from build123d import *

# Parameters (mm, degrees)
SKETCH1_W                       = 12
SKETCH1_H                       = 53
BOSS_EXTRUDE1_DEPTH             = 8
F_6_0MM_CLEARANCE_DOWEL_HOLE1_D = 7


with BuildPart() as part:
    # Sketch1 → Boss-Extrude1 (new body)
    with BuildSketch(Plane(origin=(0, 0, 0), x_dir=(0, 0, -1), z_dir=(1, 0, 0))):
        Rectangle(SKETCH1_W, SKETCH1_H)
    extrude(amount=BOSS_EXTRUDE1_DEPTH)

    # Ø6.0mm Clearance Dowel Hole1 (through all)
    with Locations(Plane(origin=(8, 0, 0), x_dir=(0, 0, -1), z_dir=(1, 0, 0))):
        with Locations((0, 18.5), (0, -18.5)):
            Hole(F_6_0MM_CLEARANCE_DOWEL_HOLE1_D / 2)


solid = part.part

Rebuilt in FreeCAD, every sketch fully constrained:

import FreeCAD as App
import Part
import Sketcher
from FreeCAD import Vector
Q = App.Units.Quantity


def add_polygon(sketch, points):
    """Adds a closed chain of lines whose ends are joined by coincident constraints."""
    first, n = sketch.GeometryCount, len(points)
    for a, b in zip(points, points[1:] + points[:1]):
        sketch.addGeometry(Part.LineSegment(App.Vector(*a, 0), App.Vector(*b, 0)), False)
    for i in range(n):
        sketch.addConstraint(Sketcher.Constraint("Coincident", first + i, 2, first + (i + 1) % n, 1))

doc = App.newDocument("Part")
params = doc.addObject("Spreadsheet::Sheet", "Params")
for row, (alias, value) in enumerate([
    ("sketch1_width", "53 mm"),
    ("sketch1_height", "12 mm"),
    ("pad1_length", "8 mm"),
    ("sketch2_diameter", "7 mm"),
    ("hole_diameter", "7 mm"),
], start=1):
    params.set(f"A{row}", alias)
    params.set(f"B{row}", "=" + value)
    params.setAlias(f"B{row}", alias)

body = doc.addObject("PartDesign::Body", "Body")

# Sketch on YZ plane
sketch1 = body.newObject("Sketcher::SketchObject", "Sketch")
sketch1.AttachmentSupport = (doc.getObject("YZ_Plane"), [""])
sketch1.MapMode = "FlatFace"
add_polygon(sketch1, [(26.5, 6), (-26.5, 6), (-26.5, -6), (26.5, -6)])  # lines 0-3
sketch1.addConstraint([
    Sketcher.Constraint("Horizontal", 0),
    Sketcher.Constraint("Vertical", 1),
    Sketcher.Constraint("Horizontal", 2),
    Sketcher.Constraint("Vertical", 3),
    Sketcher.Constraint("Symmetric", 0, 2, 2, 2, -1, 1),
    Sketcher.Constraint("DistanceX", 0, 2, 0, 1, Q("53 mm")),
    Sketcher.Constraint("DistanceY", 1, 2, 1, 1, Q("12 mm")),
])
sketch1.setExpression("Constraints[9]", "Params.sketch1_width")
sketch1.setExpression("Constraints[10]", "Params.sketch1_height")
pad1 = body.newObject("PartDesign::Pad", "Pad")
pad1.Profile = sketch1
pad1.setExpression("Length", "Params.pad1_length")

# Sketch on YZ plane
sketch2 = body.newObject("Sketcher::SketchObject", "Sketch001")
sketch2.AttachmentSupport = (doc.getObject("YZ_Plane"), [""])
sketch2.MapMode = "FlatFace"
sketch2.AttachmentOffset = App.Placement(Vector(0, 0, 8), App.Rotation())
sketch2.addGeometry([
    Part.Circle(Vector(18.5, 0, 0), Vector(0, 0, 1), 3.5),
    Part.Circle(Vector(-18.5, 0, 0), Vector(0, 0, 1), 3.5),
], False)
sketch2.addConstraint([
    Sketcher.Constraint("Equal", 0, 1),
    Sketcher.Constraint("Symmetric", 0, 3, 1, 3, -1, 1),
    Sketcher.Constraint("PointOnObject", 0, 3, -1),
    Sketcher.Constraint("Diameter", 0, Q("7 mm")),
    Sketcher.Constraint("DistanceX", 1, 3, 0, 3, Q("37 mm")),
])
sketch2.setExpression("Constraints[3]", "Params.sketch2_diameter")
doc.recompute()
hole = body.newObject("PartDesign::Hole", "Hole")
hole.Profile = sketch2
hole.ThreadType = "None"
hole.setExpression("Diameter", "Params.hole_diameter")
hole.DepthType = "ThroughAll"

doc.recompute()
